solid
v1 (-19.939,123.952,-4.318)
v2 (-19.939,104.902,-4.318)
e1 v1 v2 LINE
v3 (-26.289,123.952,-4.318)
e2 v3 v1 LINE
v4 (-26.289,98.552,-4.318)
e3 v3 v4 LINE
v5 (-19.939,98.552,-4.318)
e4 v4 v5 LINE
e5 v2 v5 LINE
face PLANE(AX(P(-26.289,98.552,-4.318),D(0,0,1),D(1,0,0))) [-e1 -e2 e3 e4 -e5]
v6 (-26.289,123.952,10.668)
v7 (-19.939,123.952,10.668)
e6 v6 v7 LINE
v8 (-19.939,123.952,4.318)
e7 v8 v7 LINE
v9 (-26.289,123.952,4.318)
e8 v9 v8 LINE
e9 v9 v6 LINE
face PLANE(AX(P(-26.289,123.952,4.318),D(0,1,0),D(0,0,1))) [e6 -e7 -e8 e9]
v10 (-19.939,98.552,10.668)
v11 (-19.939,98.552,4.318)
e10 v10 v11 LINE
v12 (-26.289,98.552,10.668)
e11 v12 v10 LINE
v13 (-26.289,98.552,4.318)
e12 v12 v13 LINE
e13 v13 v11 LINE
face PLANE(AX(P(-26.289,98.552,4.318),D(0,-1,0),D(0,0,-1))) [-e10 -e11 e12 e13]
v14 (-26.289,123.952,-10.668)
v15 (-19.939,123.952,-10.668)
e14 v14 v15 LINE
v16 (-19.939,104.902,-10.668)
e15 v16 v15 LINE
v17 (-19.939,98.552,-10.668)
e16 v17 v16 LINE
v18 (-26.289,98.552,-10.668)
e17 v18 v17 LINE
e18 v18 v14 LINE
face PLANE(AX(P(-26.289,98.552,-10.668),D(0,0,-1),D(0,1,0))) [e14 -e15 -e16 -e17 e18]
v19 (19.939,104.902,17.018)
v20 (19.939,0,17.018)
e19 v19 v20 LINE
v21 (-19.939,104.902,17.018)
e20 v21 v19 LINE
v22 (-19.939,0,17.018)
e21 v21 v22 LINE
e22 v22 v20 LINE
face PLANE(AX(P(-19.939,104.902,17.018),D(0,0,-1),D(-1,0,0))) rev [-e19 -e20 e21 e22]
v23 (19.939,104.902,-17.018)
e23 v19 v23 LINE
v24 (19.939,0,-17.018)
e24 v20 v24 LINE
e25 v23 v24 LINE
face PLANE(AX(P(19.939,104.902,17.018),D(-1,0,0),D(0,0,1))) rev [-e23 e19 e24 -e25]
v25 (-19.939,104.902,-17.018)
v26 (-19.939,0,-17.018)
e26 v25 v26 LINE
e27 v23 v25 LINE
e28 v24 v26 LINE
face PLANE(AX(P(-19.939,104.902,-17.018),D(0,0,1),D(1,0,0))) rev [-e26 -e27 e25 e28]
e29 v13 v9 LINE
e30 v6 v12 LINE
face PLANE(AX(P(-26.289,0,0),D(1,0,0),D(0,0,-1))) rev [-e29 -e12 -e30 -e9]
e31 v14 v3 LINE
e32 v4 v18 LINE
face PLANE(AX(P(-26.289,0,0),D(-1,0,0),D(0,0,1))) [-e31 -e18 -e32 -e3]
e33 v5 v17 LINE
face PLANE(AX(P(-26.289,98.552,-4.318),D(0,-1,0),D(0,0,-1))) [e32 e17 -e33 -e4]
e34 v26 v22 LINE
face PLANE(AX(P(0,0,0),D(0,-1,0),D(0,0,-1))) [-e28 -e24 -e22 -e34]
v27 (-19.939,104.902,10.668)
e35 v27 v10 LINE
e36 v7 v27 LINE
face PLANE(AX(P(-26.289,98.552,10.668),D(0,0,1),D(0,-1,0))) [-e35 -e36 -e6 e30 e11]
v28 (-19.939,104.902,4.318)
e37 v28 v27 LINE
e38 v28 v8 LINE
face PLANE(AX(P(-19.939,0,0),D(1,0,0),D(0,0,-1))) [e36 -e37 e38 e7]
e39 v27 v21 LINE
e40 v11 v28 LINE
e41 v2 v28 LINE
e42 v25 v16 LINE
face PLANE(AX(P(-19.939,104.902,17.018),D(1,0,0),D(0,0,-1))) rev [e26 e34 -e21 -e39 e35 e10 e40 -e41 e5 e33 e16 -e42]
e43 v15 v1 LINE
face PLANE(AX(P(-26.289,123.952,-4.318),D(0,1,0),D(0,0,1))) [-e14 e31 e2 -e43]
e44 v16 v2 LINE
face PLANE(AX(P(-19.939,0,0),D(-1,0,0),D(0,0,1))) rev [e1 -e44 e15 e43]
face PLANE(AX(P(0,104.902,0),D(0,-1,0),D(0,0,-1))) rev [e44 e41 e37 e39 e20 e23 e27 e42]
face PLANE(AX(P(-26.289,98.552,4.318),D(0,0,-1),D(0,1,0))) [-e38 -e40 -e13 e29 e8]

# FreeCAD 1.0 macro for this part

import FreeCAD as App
import Part
import Sketcher
from FreeCAD import Vector
Q = App.Units.Quantity

doc = App.newDocument("Part")
params = doc.addObject("Spreadsheet::Sheet", "Params")
for row, (alias, value) in enumerate([
    ("sketch1_width", "1.57 in"),
    ("sketch1_height", "1.34 in"),
    ("pad1_length", "4.13 in"),
    ("sketch2_width", "1 in"),
    ("sketch2_height", "0.25 in"),
    ("pad2_length", "0.25 in"),
], start=1):
    params.set(f"A{row}", alias)
    params.set(f"B{row}", "=" + value)
    params.setAlias(f"B{row}", alias)

body = doc.addObject("PartDesign::Body", "Body")

# Sketch on XZ plane
sketch1 = doc.addObject("Sketcher::SketchObject", "Sketch")
body.addObject(sketch1)
sketch1.AttachmentSupport = (doc.XZ_Plane, [""])
sketch1.MapMode = "FlatFace"
sketch1.addGeometry([
    Part.LineSegment(Vector(-19.939, -17.018, 0), Vector(-19.939, 17.018, 0)),
    Part.LineSegment(Vector(-19.939, 17.018, 0), Vector(19.939, 17.018, 0)),
    Part.LineSegment(Vector(19.939, 17.018, 0), Vector(19.939, -17.018, 0)),
    Part.LineSegment(Vector(19.939, -17.018, 0), Vector(-19.939, -17.018, 0)),
], False)
sketch1.addConstraint([
    Sketcher.Constraint("Coincident", 0, 2, 1, 1),
    Sketcher.Constraint("Coincident", 1, 2, 2, 1),
    Sketcher.Constraint("Coincident", 2, 2, 3, 1),
    Sketcher.Constraint("Coincident", 3, 2, 0, 1),
    Sketcher.Constraint("Vertical", 0),
    Sketcher.Constraint("Horizontal", 1),
    Sketcher.Constraint("Vertical", 2),
    Sketcher.Constraint("Horizontal", 3),
    Sketcher.Constraint("Symmetric", 0, 2, 2, 2, -1, 1),
    Sketcher.Constraint("DistanceX", 1, 1, 1, 2, Q("1.57 in")),
    Sketcher.Constraint("DistanceY", 0, 1, 0, 2, Q("1.34 in")),
])
sketch1.setExpression("Constraints[9]", "Params.sketch1_width")
sketch1.setExpression("Constraints[10]", "Params.sketch1_height")
pad1 = doc.addObject("PartDesign::Pad", "Pad")
body.addObject(pad1)
pad1.Profile = sketch1
pad1.setExpression("Length", "Params.pad1_length")
pad1.Reversed = True

# Sketch on YZ plane
sketch2 = doc.addObject("Sketcher::SketchObject", "Sketch001")
body.addObject(sketch2)
sketch2.AttachmentSupport = (doc.YZ_Plane, [""])
sketch2.MapMode = "FlatFace"
sketch2.AttachmentOffset = App.Placement(Vector(0, 0, -0.785 * 25.4), App.Rotation())
sketch2.addGeometry([
    Part.LineSegment(Vector(123.952, -4.318, 0), Vector(98.552, -4.318, 0)),  # 0
    Part.LineSegment(Vector(98.552, -4.318, 0), Vector(98.552, -10.668, 0)),  # 1
    Part.LineSegment(Vector(98.552, -10.668, 0), Vector(123.952, -10.668, 0)),  # 2
    Part.LineSegment(Vector(123.952, -10.668, 0), Vector(123.952, -4.318, 0)),  # 3
    Part.LineSegment(Vector(123.952, 10.668, 0), Vector(98.552, 10.668, 0)),  # 4
    Part.LineSegment(Vector(98.552, 10.668, 0), Vector(98.552, 4.318, 0)),  # 5
    Part.LineSegment(Vector(98.552, 4.318, 0), Vector(123.952, 4.318, 0)),  # 6
    Part.LineSegment(Vector(123.952, 4.318, 0), Vector(123.952, 10.668, 0)),  # 7
], False)
sketch2.addConstraint([
    Sketcher.Constraint("Coincident", 0, 2, 1, 1),
    Sketcher.Constraint("Coincident", 1, 2, 2, 1),
    Sketcher.Constraint("Coincident", 2, 2, 3, 1),
    Sketcher.Constraint("Coincident", 3, 2, 0, 1),
    Sketcher.Constraint("Coincident", 4, 2, 5, 1),
    Sketcher.Constraint("Coincident", 5, 2, 6, 1),
    Sketcher.Constraint("Coincident", 6, 2, 7, 1),
    Sketcher.Constraint("Coincident", 7, 2, 4, 1),
    Sketcher.Constraint("Horizontal", 0),
    Sketcher.Constraint("Vertical", 1),
    Sketcher.Constraint("Horizontal", 2),
    Sketcher.Constraint("Vertical", 3),
    Sketcher.Constraint("Horizontal", 4),
    Sketcher.Constraint("Vertical", 5),
    Sketcher.Constraint("Horizontal", 6),
    Sketcher.Constraint("Vertical", 7),
    Sketcher.Constraint("Symmetric", 1, 2, 4, 2, -1),
    Sketcher.Constraint("Symmetric", 3, 2, 6, 2, -1),
    Sketcher.Constraint("DistanceX", 0, 2, 0, 1, Q("1 in")),
    Sketcher.Constraint("DistanceY", 1, 2, 1, 1, Q("0.25 in")),
    Sketcher.Constraint("DistanceX", -1, 1, 0, 2, Q("3.88 in")),
    Sketcher.Constraint("DistanceY", 0, 2, -1, 1, Q("0.17 in")),
])
sketch2.setExpression("Constraints[18]", "Params.sketch2_width")
sketch2.setExpression("Constraints[19]", "Params.sketch2_height")
pad2 = doc.addObject("PartDesign::Pad", "Pad001")
body.addObject(pad2)
pad2.Profile = sketch2
pad2.setExpression("Length", "Params.pad2_length")
pad2.Reversed = True

doc.recompute()
